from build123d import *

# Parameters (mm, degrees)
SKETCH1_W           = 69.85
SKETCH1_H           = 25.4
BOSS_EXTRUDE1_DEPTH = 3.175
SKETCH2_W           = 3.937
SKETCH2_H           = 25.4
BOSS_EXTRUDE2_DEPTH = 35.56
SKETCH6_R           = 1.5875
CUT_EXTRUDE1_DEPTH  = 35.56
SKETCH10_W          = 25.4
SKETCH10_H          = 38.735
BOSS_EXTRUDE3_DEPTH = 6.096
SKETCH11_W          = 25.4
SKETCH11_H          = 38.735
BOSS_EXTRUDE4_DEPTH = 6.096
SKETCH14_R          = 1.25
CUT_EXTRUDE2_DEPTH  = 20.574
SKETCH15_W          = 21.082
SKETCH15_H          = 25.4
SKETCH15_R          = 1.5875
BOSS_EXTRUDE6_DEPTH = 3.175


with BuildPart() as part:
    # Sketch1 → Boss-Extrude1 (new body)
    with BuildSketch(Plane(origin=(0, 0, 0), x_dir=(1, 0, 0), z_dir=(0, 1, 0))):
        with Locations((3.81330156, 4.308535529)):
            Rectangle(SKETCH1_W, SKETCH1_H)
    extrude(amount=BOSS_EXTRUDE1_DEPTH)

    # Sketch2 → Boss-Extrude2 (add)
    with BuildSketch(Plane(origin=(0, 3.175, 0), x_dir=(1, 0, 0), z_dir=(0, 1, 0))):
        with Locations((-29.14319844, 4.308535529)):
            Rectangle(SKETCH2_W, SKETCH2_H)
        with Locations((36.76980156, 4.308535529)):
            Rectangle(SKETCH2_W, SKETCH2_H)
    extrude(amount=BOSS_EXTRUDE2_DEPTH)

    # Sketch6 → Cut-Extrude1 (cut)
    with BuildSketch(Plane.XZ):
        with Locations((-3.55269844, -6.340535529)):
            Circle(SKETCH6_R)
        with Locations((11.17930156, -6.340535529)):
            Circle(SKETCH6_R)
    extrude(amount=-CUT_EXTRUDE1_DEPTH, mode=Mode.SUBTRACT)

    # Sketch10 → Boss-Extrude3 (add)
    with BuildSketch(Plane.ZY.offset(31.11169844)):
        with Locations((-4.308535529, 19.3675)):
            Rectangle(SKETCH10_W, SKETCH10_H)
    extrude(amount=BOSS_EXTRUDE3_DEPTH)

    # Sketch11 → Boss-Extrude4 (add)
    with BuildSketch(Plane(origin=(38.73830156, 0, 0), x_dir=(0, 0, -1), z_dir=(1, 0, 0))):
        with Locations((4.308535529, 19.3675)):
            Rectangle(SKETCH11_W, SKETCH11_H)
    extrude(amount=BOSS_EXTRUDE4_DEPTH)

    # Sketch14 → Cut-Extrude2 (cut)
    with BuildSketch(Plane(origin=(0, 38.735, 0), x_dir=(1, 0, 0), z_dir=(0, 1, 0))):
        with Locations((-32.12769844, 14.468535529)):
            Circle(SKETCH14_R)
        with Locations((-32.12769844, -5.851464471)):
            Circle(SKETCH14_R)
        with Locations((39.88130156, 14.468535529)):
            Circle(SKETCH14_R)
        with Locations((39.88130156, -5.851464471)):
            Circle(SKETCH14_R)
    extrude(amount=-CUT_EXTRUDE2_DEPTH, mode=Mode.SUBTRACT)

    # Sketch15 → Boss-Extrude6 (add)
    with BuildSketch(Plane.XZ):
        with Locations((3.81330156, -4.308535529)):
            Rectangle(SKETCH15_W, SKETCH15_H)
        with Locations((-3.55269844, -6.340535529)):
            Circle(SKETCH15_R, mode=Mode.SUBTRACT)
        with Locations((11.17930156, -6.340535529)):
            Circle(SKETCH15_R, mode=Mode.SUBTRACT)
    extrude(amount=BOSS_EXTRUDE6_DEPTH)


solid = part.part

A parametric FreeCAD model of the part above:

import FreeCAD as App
import Part
import Sketcher

V = App.Vector
Q = App.Units.Quantity


def add_polygon(sketch, points):
    """Adds a closed chain of lines whose ends are joined by coincident constraints."""
    first, n = sketch.GeometryCount, len(points)
    for a, b in zip(points, points[1:] + points[:1]):
        sketch.addGeometry(Part.LineSegment(App.Vector(*a, 0), App.Vector(*b, 0)), False)
    for i in range(n):
        sketch.addConstraint(Sketcher.Constraint("Coincident", first + i, 2, first + (i + 1) % n, 1))

doc = App.newDocument("Part")
params = doc.addObject("Spreadsheet::Sheet", "Params")
for row, (alias, value) in enumerate([
    ("sketch1_height", "1 in"),
    ("sketch1_width", "2.75 in"),
    ("pad1_length", "0.125 in"),
    ("sketch2_height", "1 in"),
    ("sketch2_width", "0.155 in"),
    ("pad2_length", "1.4 in"),
    ("sketch3_diameter", "0.125 in"),
    ("pocket1_length", "1.4 in"),
    ("sketch4_height", "1 in"),
    ("sketch4_width", "1.525 in"),
    ("pad3_length", "0.24 in"),
    ("sketch5_height", "1 in"),
    ("sketch5_width", "1.525 in"),
    ("pad4_length", "0.24 in"),
    ("pocket2_length", "0.81 in"),
    ("sketch7_height", "1 in"),
    ("sketch7_diameter", "0.125 in"),
    ("sketch7_width", "0.83 in"),
    ("pad5_length", "0.125 in"),
], start=1):
    params.set(f"A{row}", alias)
    params.set(f"B{row}", "=" + value)
    params.setAlias(f"B{row}", alias)

body = doc.addObject("PartDesign::Body", "Body")

sketch1 = body.newObject("Sketcher::SketchObject", "Sketch")
sketch1.AttachmentSupport = (doc.getObject("XZ_Plane"), [""])
sketch1.MapMode = "FlatFace"
add_polygon(sketch1, [(-31.111698, -17.008536), (-31.111698, 8.391464), (38.738302, 8.391464), (38.738302, -17.008536)])
sketch1.addConstraint(Sketcher.Constraint("Vertical", 0))
sketch1.addConstraint(Sketcher.Constraint("Horizontal", 1))
sketch1.addConstraint(Sketcher.Constraint("Vertical", 2))
sketch1.addConstraint(Sketcher.Constraint("Horizontal", 3))
sketch1.addConstraint(Sketcher.Constraint("DistanceY", 0, 1, 0, 2, Q("1 in")))
sketch1.addConstraint(Sketcher.Constraint("DistanceX", 1, 1, 1, 2, Q("2.75 in")))
sketch1.addConstraint(Sketcher.Constraint("DistanceX", 0, 2, -1, 1, Q("31.111698 mm")))
sketch1.addConstraint(Sketcher.Constraint("DistanceY", -1, 1, 0, 2, Q("8.391464 mm")))
sketch1.setExpression("Constraints[8]", "Params.sketch1_height")
sketch1.setExpression("Constraints[9]", "Params.sketch1_width")
pad1 = body.newObject("PartDesign::Pad", "Pad")
pad1.Profile = sketch1
pad1.setExpression("Length", "Params.pad1_length")
pad1.Reversed = True

sketch2 = body.newObject("Sketcher::SketchObject", "Sketch001")
sketch2.AttachmentSupport = (doc.getObject("XZ_Plane"), [""])
sketch2.MapMode = "FlatFace"
sketch2.AttachmentOffset = App.Placement(V(0, 0, -0.125 * 25.4), App.Rotation())
add_polygon(sketch2, [(-31.111698, -17.008536), (-31.111698, 8.391464), (-27.174698, 8.391464), (-27.174698, -17.008536)])
add_polygon(sketch2, [(34.801302, -17.008536), (34.801302, 8.391464), (38.738302, 8.391464), (38.738302, -17.008536)])
sketch2.addConstraint(Sketcher.Constraint("Vertical", 0))
sketch2.addConstraint(Sketcher.Constraint("Horizontal", 1))
sketch2.addConstraint(Sketcher.Constraint("Vertical", 2))
sketch2.addConstraint(Sketcher.Constraint("Horizontal", 3))
sketch2.addConstraint(Sketcher.Constraint("Vertical", 4))
sketch2.addConstraint(Sketcher.Constraint("Horizontal", 5))
sketch2.addConstraint(Sketcher.Constraint("Vertical", 6))
sketch2.addConstraint(Sketcher.Constraint("Horizontal", 7))
sketch2.addConstraint(Sketcher.Constraint("Horizontal", 1, 2, 4, 2))
sketch2.addConstraint(Sketcher.Constraint("Horizontal", 3, 2, 6, 2))
sketch2.addConstraint(Sketcher.Constraint("Equal", 3, 5))
sketch2.addConstraint(Sketcher.Constraint("DistanceY", 0, 1, 0, 2, Q("1 in")))
sketch2.addConstraint(Sketcher.Constraint("DistanceX", 1, 1, 1, 2, Q("0.155 in")))
sketch2.addConstraint(Sketcher.Constraint("DistanceX", 1, 2, 4, 2, Q("2.44 in")))
sketch2.addConstraint(Sketcher.Constraint("DistanceX", 0, 2, -1, 1, Q("31.111698 mm")))
sketch2.addConstraint(Sketcher.Constraint("DistanceY", -1, 1, 0, 2, Q("8.391464 mm")))
sketch2.setExpression("Constraints[19]", "Params.sketch2_height")
sketch2.setExpression("Constraints[20]", "Params.sketch2_width")
pad2 = body.newObject("PartDesign::Pad", "Pad001")
pad2.Profile = sketch2
pad2.setExpression("Length", "Params.pad2_length")
pad2.Reversed = True

sketch3 = body.newObject("Sketcher::SketchObject", "Sketch002")
sketch3.AttachmentSupport = (doc.getObject("XZ_Plane"), [""])
sketch3.MapMode = "FlatFace"
sketch3.addGeometry(Part.Circle(V(-3.552698, -6.340536, 0), V(0, 0, 1), 1.5875), False)
sketch3.addGeometry(Part.Circle(V(11.179302, -6.340536, 0), V(0, 0, 1), 1.5875), False)
sketch3.addConstraint(Sketcher.Constraint("Equal", 0, 1))
sketch3.addConstraint(Sketcher.Constraint("Horizontal", 0, 3, 1, 3))
sketch3.addConstraint(Sketcher.Constraint("Diameter", 0, Q("0.125 in")))
sketch3.addConstraint(Sketcher.Constraint("DistanceX", 0, 3, 1, 3, Q("0.58 in")))
sketch3.addConstraint(Sketcher.Constraint("DistanceX", 0, 3, -1, 1, Q("3.552698 mm")))
sketch3.addConstraint(Sketcher.Constraint("DistanceY", 0, 3, -1, 1, Q("6.340536 mm")))
sketch3.setExpression("Constraints[2]", "Params.sketch3_diameter")
pocket1 = body.newObject("PartDesign::Pocket", "Pocket")
pocket1.Profile = sketch3
pocket1.setExpression("Length", "Params.pocket1_length")

sketch4 = body.newObject("Sketcher::SketchObject", "Sketch003")
sketch4.AttachmentSupport = (doc.getObject("YZ_Plane"), [""])
sketch4.MapMode = "FlatFace"
sketch4.AttachmentOffset = App.Placement(V(0, 0, -31.111698), App.Rotation())
add_polygon(sketch4, [(38.735, -17.008536), (0, -17.008536), (0, 8.391464), (38.735, 8.391464)])
sketch4.addConstraint(Sketcher.Constraint("Horizontal", 0))
sketch4.addConstraint(Sketcher.Constraint("Vertical", 1))
sketch4.addConstraint(Sketcher.Constraint("Horizontal", 2))
sketch4.addConstraint(Sketcher.Constraint("Vertical", 3))
sketch4.addConstraint(Sketcher.Constraint("PointOnObject", 0, 2, -2))
sketch4.addConstraint(Sketcher.Constraint("DistanceY", 1, 1, 1, 2, Q("1 in")))
sketch4.addConstraint(Sketcher.Constraint("DistanceX", 0, 2, 0, 1, Q("1.525 in")))
sketch4.addConstraint(Sketcher.Constraint("DistanceY", 0, 2, -1, 1, Q("17.008536 mm")))
sketch4.setExpression("Constraints[9]", "Params.sketch4_height")
sketch4.setExpression("Constraints[10]", "Params.sketch4_width")
pad3 = body.newObject("PartDesign::Pad", "Pad002")
pad3.Profile = sketch4
pad3.setExpression("Length", "Params.pad3_length")
pad3.Reversed = True

sketch5 = body.newObject("Sketcher::SketchObject", "Sketch004")
sketch5.AttachmentSupport = (doc.getObject("YZ_Plane"), [""])
sketch5.MapMode = "FlatFace"
sketch5.AttachmentOffset = App.Placement(V(0, 0, 38.738302), App.Rotation())
add_polygon(sketch5, [(38.735, 8.391464), (0, 8.391464), (0, -17.008536), (38.735, -17.008536)])
sketch5.addConstraint(Sketcher.Constraint("Horizontal", 0))
sketch5.addConstraint(Sketcher.Constraint("Vertical", 1))
sketch5.addConstraint(Sketcher.Constraint("Horizontal", 2))
sketch5.addConstraint(Sketcher.Constraint("Vertical", 3))
sketch5.addConstraint(Sketcher.Constraint("PointOnObject", 0, 2, -2))
sketch5.addConstraint(Sketcher.Constraint("DistanceY", 1, 2, 1, 1, Q("1 in")))
sketch5.addConstraint(Sketcher.Constraint("DistanceX", 0, 2, 0, 1, Q("1.525 in")))
sketch5.addConstraint(Sketcher.Constraint("DistanceY", -1, 1, 0, 2, Q("8.391464 mm")))
sketch5.setExpression("Constraints[9]", "Params.sketch5_height")
sketch5.setExpression("Constraints[10]", "Params.sketch5_width")
pad4 = body.newObject("PartDesign::Pad", "Pad003")
pad4.Profile = sketch5
pad4.setExpression("Length", "Params.pad4_length")

sketch6 = body.newObject("Sketcher::SketchObject", "Sketch005")
sketch6.AttachmentSupport = (doc.getObject("XZ_Plane"), [""])
sketch6.MapMode = "FlatFace"
sketch6.AttachmentOffset = App.Placement(V(0, 0, -1.525 * 25.4), App.Rotation())
sketch6.addGeometry(Part.Circle(V(-32.127698, -14.468536, 0), V(0, 0, 1), 1.25), False)
sketch6.addGeometry(Part.Circle(V(-32.127698, 5.851464, 0), V(0, 0, 1), 1.25), False)
sketch6.addGeometry(Part.Circle(V(39.881302, -14.468536, 0), V(0, 0, 1), 1.25), False)
sketch6.addGeometry(Part.Circle(V(39.881302, 5.851464, 0), V(0, 0, 1), 1.25), False)
sketch6.addConstraint(Sketcher.Constraint("Equal", 0, 1))
sketch6.addConstraint(Sketcher.Constraint("Equal", 1, 2))
sketch6.addConstraint(Sketcher.Constraint("Equal", 2, 3))
sketch6.addConstraint(Sketcher.Constraint("Horizontal", 0, 3, 2, 3))
sketch6.addConstraint(Sketcher.Constraint("Horizontal", 1, 3, 3, 3))
sketch6.addConstraint(Sketcher.Constraint("Vertical", 0, 3, 1, 3))
sketch6.addConstraint(Sketcher.Constraint("Vertical", 2, 3, 3, 3))
sketch6.addConstraint(Sketcher.Constraint("DistanceY", 0, 3, 1, 3, Q("0.8 in")))
sketch6.addConstraint(Sketcher.Constraint("Diameter", 0, Q("2.5 mm")))
sketch6.addConstraint(Sketcher.Constraint("DistanceX", 0, 3, 2, 3, Q("2.835 in")))
sketch6.addConstraint(Sketcher.Constraint("DistanceX", 0, 3, -1, 1, Q("32.127698 mm")))
sketch6.addConstraint(Sketcher.Constraint("DistanceY", 0, 3, -1, 1, Q("14.468536 mm")))
pocket2 = body.newObject("PartDesign::Pocket", "Pocket001")
pocket2.Profile = sketch6
pocket2.setExpression("Length", "Params.pocket2_length")
pocket2.Reversed = True

sketch7 = body.newObject("Sketcher::SketchObject", "Sketch006")
sketch7.AttachmentSupport = (doc.getObject("XZ_Plane"), [""])
sketch7.MapMode = "FlatFace"
add_polygon(sketch7, [(-6.727698, 8.391464), (-6.727698, -17.008536), (14.354302, -17.008536), (14.354302, 8.391464)])
sketch7.addGeometry(Part.Circle(V(-3.552698, -6.340536, 0), V(0, 0, 1), 1.5875), False)
sketch7.addGeometry(Part.Circle(V(11.179302, -6.340536, 0), V(0, 0, 1), 1.5875), False)
sketch7.addConstraint(Sketcher.Constraint("Vertical", 0))
sketch7.addConstraint(Sketcher.Constraint("Horizontal", 1))
sketch7.addConstraint(Sketcher.Constraint("Vertical", 2))
sketch7.addConstraint(Sketcher.Constraint("Horizontal", 3))
sketch7.addConstraint(Sketcher.Constraint("Equal", 4, 5))
sketch7.addConstraint(Sketcher.Constraint("Horizontal", 4, 3, 5, 3))
sketch7.addConstraint(Sketcher.Constraint("DistanceY", 0, 2, 0, 1, Q("1 in")))
sketch7.addConstraint(Sketcher.Constraint("Diameter", 4, Q("0.125 in")))
sketch7.addConstraint(Sketcher.Constraint("DistanceX", 1, 1, 1, 2, Q("0.83 in")))
sketch7.addConstraint(Sketcher.Constraint("DistanceX", 4, 3, 5, 3, Q("0.58 in")))
sketch7.addConstraint(Sketcher.Constraint("DistanceY", 0, 2, 4, 3, Q("0.42 in")))
sketch7.addConstraint(Sketcher.Constraint("DistanceX", 0, 2, 4, 3, Q("0.125 in")))
sketch7.addConstraint(Sketcher.Constraint("DistanceX", 4, 3, -1, 1, Q("3.552698 mm")))
sketch7.addConstraint(Sketcher.Constraint("DistanceY", 4, 3, -1, 1, Q("6.340536 mm")))
sketch7.setExpression("Constraints[10]", "Params.sketch7_height")
sketch7.setExpression("Constraints[11]", "Params.sketch7_diameter")
sketch7.setExpression("Constraints[12]", "Params.sketch7_width")
pad5 = body.newObject("PartDesign::Pad", "Pad004")
pad5.Profile = sketch7
pad5.setExpression("Length", "Params.pad5_length")

doc.recompute()
